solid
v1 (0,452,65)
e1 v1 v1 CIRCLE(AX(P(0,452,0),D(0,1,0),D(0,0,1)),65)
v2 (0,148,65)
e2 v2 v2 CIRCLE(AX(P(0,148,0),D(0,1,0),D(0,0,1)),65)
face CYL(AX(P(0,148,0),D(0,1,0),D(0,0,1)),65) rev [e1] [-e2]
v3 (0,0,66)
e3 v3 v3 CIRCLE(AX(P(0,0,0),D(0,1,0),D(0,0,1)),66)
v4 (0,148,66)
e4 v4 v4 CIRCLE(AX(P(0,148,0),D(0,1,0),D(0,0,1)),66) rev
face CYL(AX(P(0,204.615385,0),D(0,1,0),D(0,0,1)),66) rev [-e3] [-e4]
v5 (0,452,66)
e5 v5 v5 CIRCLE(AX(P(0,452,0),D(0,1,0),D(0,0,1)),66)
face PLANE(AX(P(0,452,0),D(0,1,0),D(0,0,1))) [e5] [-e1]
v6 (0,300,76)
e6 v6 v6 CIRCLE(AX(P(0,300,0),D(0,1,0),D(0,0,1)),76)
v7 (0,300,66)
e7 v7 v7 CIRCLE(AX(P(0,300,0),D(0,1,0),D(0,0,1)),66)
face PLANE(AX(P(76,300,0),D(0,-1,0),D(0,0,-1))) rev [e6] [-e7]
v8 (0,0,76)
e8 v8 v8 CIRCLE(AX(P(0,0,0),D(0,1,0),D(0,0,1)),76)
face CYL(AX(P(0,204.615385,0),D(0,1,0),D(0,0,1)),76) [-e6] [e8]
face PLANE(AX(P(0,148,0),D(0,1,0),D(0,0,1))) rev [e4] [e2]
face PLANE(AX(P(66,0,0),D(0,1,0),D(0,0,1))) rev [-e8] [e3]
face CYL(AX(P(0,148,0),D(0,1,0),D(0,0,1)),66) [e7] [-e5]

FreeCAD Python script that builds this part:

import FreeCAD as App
import Part
import Sketcher

V = App.Vector

doc = App.newDocument("Part")
body = doc.addObject("PartDesign::Body", "Body")

# Sketch on XY plane
sketch1 = body.newObject("Sketcher::SketchObject", "Sketch")
sketch1.AttachmentSupport = (doc.getObject("XY_Plane"), [""])
sketch1.MapMode = "FlatFace"
sketch1.addGeometry([
    Part.LineSegment(V(66, 300, 0), V(66, 0, 0)),
    Part.LineSegment(V(66, 0, 0), V(76, 0, 0)),
    Part.LineSegment(V(76, 0, 0), V(76, 300, 0)),
    Part.LineSegment(V(76, 300, 0), V(66, 300, 0)),
], False)
sketch1.addConstraint([
    Sketcher.Constraint("Coincident", 0, 2, 1, 1),
    Sketcher.Constraint("Coincident", 1, 2, 2, 1),
    Sketcher.Constraint("Coincident", 2, 2, 3, 1),
    Sketcher.Constraint("Coincident", 3, 2, 0, 1),
    Sketcher.Constraint("Vertical", 0),
    Sketcher.Constraint("Horizontal", 1),
    Sketcher.Constraint("Vertical", 2),
    Sketcher.Constraint("Horizontal", 3),
    Sketcher.Constraint("PointOnObject", 0, 2, -1),
    Sketcher.Constraint("DistanceX", 1, 1, 1, 2, 10.0),
    Sketcher.Constraint("DistanceY", 0, 2, 0, 1, 300.0),
    Sketcher.Constraint("DistanceX", -1, 1, 0, 2, 66.0),
])
revolution = body.newObject("PartDesign::Revolution", "Revolution")
revolution.Profile = sketch1
revolution.ReferenceAxis = (sketch1, ["V_Axis"])
revolution.Angle = 360

# Sketch on XZ plane
sketch2 = body.newObject("Sketcher::SketchObject", "Sketch001")
sketch2.AttachmentSupport = (doc.getObject("XZ_Plane"), [""])
sketch2.MapMode = "FlatFace"
sketch2.AttachmentOffset = App.Placement(V(0, 0, -300), App.Rotation())
sketch2.addGeometry([
    Part.Circle(V(0, 0, 0), V(0, 0, 1), 66),
    Part.Circle(V(0, 0, 0), V(0, 0, 1), 65),
], False)
sketch2.addConstraint([
    Sketcher.Constraint("Coincident", 0, 3, -1, 1),
    Sketcher.Constraint("Coincident", 1, 3, -1, 1),
    Sketcher.Constraint("Diameter", 0, 132.0),
    Sketcher.Constraint("Diameter", 1, 130.0),
])
pad1 = body.newObject("PartDesign::Pad", "Pad")
pad1.Profile = sketch2
pad1.Type = "TwoLengths"
pad1.Length = 152
pad1.Length2 = 152
pad1.Reversed = True

doc.recompute()
